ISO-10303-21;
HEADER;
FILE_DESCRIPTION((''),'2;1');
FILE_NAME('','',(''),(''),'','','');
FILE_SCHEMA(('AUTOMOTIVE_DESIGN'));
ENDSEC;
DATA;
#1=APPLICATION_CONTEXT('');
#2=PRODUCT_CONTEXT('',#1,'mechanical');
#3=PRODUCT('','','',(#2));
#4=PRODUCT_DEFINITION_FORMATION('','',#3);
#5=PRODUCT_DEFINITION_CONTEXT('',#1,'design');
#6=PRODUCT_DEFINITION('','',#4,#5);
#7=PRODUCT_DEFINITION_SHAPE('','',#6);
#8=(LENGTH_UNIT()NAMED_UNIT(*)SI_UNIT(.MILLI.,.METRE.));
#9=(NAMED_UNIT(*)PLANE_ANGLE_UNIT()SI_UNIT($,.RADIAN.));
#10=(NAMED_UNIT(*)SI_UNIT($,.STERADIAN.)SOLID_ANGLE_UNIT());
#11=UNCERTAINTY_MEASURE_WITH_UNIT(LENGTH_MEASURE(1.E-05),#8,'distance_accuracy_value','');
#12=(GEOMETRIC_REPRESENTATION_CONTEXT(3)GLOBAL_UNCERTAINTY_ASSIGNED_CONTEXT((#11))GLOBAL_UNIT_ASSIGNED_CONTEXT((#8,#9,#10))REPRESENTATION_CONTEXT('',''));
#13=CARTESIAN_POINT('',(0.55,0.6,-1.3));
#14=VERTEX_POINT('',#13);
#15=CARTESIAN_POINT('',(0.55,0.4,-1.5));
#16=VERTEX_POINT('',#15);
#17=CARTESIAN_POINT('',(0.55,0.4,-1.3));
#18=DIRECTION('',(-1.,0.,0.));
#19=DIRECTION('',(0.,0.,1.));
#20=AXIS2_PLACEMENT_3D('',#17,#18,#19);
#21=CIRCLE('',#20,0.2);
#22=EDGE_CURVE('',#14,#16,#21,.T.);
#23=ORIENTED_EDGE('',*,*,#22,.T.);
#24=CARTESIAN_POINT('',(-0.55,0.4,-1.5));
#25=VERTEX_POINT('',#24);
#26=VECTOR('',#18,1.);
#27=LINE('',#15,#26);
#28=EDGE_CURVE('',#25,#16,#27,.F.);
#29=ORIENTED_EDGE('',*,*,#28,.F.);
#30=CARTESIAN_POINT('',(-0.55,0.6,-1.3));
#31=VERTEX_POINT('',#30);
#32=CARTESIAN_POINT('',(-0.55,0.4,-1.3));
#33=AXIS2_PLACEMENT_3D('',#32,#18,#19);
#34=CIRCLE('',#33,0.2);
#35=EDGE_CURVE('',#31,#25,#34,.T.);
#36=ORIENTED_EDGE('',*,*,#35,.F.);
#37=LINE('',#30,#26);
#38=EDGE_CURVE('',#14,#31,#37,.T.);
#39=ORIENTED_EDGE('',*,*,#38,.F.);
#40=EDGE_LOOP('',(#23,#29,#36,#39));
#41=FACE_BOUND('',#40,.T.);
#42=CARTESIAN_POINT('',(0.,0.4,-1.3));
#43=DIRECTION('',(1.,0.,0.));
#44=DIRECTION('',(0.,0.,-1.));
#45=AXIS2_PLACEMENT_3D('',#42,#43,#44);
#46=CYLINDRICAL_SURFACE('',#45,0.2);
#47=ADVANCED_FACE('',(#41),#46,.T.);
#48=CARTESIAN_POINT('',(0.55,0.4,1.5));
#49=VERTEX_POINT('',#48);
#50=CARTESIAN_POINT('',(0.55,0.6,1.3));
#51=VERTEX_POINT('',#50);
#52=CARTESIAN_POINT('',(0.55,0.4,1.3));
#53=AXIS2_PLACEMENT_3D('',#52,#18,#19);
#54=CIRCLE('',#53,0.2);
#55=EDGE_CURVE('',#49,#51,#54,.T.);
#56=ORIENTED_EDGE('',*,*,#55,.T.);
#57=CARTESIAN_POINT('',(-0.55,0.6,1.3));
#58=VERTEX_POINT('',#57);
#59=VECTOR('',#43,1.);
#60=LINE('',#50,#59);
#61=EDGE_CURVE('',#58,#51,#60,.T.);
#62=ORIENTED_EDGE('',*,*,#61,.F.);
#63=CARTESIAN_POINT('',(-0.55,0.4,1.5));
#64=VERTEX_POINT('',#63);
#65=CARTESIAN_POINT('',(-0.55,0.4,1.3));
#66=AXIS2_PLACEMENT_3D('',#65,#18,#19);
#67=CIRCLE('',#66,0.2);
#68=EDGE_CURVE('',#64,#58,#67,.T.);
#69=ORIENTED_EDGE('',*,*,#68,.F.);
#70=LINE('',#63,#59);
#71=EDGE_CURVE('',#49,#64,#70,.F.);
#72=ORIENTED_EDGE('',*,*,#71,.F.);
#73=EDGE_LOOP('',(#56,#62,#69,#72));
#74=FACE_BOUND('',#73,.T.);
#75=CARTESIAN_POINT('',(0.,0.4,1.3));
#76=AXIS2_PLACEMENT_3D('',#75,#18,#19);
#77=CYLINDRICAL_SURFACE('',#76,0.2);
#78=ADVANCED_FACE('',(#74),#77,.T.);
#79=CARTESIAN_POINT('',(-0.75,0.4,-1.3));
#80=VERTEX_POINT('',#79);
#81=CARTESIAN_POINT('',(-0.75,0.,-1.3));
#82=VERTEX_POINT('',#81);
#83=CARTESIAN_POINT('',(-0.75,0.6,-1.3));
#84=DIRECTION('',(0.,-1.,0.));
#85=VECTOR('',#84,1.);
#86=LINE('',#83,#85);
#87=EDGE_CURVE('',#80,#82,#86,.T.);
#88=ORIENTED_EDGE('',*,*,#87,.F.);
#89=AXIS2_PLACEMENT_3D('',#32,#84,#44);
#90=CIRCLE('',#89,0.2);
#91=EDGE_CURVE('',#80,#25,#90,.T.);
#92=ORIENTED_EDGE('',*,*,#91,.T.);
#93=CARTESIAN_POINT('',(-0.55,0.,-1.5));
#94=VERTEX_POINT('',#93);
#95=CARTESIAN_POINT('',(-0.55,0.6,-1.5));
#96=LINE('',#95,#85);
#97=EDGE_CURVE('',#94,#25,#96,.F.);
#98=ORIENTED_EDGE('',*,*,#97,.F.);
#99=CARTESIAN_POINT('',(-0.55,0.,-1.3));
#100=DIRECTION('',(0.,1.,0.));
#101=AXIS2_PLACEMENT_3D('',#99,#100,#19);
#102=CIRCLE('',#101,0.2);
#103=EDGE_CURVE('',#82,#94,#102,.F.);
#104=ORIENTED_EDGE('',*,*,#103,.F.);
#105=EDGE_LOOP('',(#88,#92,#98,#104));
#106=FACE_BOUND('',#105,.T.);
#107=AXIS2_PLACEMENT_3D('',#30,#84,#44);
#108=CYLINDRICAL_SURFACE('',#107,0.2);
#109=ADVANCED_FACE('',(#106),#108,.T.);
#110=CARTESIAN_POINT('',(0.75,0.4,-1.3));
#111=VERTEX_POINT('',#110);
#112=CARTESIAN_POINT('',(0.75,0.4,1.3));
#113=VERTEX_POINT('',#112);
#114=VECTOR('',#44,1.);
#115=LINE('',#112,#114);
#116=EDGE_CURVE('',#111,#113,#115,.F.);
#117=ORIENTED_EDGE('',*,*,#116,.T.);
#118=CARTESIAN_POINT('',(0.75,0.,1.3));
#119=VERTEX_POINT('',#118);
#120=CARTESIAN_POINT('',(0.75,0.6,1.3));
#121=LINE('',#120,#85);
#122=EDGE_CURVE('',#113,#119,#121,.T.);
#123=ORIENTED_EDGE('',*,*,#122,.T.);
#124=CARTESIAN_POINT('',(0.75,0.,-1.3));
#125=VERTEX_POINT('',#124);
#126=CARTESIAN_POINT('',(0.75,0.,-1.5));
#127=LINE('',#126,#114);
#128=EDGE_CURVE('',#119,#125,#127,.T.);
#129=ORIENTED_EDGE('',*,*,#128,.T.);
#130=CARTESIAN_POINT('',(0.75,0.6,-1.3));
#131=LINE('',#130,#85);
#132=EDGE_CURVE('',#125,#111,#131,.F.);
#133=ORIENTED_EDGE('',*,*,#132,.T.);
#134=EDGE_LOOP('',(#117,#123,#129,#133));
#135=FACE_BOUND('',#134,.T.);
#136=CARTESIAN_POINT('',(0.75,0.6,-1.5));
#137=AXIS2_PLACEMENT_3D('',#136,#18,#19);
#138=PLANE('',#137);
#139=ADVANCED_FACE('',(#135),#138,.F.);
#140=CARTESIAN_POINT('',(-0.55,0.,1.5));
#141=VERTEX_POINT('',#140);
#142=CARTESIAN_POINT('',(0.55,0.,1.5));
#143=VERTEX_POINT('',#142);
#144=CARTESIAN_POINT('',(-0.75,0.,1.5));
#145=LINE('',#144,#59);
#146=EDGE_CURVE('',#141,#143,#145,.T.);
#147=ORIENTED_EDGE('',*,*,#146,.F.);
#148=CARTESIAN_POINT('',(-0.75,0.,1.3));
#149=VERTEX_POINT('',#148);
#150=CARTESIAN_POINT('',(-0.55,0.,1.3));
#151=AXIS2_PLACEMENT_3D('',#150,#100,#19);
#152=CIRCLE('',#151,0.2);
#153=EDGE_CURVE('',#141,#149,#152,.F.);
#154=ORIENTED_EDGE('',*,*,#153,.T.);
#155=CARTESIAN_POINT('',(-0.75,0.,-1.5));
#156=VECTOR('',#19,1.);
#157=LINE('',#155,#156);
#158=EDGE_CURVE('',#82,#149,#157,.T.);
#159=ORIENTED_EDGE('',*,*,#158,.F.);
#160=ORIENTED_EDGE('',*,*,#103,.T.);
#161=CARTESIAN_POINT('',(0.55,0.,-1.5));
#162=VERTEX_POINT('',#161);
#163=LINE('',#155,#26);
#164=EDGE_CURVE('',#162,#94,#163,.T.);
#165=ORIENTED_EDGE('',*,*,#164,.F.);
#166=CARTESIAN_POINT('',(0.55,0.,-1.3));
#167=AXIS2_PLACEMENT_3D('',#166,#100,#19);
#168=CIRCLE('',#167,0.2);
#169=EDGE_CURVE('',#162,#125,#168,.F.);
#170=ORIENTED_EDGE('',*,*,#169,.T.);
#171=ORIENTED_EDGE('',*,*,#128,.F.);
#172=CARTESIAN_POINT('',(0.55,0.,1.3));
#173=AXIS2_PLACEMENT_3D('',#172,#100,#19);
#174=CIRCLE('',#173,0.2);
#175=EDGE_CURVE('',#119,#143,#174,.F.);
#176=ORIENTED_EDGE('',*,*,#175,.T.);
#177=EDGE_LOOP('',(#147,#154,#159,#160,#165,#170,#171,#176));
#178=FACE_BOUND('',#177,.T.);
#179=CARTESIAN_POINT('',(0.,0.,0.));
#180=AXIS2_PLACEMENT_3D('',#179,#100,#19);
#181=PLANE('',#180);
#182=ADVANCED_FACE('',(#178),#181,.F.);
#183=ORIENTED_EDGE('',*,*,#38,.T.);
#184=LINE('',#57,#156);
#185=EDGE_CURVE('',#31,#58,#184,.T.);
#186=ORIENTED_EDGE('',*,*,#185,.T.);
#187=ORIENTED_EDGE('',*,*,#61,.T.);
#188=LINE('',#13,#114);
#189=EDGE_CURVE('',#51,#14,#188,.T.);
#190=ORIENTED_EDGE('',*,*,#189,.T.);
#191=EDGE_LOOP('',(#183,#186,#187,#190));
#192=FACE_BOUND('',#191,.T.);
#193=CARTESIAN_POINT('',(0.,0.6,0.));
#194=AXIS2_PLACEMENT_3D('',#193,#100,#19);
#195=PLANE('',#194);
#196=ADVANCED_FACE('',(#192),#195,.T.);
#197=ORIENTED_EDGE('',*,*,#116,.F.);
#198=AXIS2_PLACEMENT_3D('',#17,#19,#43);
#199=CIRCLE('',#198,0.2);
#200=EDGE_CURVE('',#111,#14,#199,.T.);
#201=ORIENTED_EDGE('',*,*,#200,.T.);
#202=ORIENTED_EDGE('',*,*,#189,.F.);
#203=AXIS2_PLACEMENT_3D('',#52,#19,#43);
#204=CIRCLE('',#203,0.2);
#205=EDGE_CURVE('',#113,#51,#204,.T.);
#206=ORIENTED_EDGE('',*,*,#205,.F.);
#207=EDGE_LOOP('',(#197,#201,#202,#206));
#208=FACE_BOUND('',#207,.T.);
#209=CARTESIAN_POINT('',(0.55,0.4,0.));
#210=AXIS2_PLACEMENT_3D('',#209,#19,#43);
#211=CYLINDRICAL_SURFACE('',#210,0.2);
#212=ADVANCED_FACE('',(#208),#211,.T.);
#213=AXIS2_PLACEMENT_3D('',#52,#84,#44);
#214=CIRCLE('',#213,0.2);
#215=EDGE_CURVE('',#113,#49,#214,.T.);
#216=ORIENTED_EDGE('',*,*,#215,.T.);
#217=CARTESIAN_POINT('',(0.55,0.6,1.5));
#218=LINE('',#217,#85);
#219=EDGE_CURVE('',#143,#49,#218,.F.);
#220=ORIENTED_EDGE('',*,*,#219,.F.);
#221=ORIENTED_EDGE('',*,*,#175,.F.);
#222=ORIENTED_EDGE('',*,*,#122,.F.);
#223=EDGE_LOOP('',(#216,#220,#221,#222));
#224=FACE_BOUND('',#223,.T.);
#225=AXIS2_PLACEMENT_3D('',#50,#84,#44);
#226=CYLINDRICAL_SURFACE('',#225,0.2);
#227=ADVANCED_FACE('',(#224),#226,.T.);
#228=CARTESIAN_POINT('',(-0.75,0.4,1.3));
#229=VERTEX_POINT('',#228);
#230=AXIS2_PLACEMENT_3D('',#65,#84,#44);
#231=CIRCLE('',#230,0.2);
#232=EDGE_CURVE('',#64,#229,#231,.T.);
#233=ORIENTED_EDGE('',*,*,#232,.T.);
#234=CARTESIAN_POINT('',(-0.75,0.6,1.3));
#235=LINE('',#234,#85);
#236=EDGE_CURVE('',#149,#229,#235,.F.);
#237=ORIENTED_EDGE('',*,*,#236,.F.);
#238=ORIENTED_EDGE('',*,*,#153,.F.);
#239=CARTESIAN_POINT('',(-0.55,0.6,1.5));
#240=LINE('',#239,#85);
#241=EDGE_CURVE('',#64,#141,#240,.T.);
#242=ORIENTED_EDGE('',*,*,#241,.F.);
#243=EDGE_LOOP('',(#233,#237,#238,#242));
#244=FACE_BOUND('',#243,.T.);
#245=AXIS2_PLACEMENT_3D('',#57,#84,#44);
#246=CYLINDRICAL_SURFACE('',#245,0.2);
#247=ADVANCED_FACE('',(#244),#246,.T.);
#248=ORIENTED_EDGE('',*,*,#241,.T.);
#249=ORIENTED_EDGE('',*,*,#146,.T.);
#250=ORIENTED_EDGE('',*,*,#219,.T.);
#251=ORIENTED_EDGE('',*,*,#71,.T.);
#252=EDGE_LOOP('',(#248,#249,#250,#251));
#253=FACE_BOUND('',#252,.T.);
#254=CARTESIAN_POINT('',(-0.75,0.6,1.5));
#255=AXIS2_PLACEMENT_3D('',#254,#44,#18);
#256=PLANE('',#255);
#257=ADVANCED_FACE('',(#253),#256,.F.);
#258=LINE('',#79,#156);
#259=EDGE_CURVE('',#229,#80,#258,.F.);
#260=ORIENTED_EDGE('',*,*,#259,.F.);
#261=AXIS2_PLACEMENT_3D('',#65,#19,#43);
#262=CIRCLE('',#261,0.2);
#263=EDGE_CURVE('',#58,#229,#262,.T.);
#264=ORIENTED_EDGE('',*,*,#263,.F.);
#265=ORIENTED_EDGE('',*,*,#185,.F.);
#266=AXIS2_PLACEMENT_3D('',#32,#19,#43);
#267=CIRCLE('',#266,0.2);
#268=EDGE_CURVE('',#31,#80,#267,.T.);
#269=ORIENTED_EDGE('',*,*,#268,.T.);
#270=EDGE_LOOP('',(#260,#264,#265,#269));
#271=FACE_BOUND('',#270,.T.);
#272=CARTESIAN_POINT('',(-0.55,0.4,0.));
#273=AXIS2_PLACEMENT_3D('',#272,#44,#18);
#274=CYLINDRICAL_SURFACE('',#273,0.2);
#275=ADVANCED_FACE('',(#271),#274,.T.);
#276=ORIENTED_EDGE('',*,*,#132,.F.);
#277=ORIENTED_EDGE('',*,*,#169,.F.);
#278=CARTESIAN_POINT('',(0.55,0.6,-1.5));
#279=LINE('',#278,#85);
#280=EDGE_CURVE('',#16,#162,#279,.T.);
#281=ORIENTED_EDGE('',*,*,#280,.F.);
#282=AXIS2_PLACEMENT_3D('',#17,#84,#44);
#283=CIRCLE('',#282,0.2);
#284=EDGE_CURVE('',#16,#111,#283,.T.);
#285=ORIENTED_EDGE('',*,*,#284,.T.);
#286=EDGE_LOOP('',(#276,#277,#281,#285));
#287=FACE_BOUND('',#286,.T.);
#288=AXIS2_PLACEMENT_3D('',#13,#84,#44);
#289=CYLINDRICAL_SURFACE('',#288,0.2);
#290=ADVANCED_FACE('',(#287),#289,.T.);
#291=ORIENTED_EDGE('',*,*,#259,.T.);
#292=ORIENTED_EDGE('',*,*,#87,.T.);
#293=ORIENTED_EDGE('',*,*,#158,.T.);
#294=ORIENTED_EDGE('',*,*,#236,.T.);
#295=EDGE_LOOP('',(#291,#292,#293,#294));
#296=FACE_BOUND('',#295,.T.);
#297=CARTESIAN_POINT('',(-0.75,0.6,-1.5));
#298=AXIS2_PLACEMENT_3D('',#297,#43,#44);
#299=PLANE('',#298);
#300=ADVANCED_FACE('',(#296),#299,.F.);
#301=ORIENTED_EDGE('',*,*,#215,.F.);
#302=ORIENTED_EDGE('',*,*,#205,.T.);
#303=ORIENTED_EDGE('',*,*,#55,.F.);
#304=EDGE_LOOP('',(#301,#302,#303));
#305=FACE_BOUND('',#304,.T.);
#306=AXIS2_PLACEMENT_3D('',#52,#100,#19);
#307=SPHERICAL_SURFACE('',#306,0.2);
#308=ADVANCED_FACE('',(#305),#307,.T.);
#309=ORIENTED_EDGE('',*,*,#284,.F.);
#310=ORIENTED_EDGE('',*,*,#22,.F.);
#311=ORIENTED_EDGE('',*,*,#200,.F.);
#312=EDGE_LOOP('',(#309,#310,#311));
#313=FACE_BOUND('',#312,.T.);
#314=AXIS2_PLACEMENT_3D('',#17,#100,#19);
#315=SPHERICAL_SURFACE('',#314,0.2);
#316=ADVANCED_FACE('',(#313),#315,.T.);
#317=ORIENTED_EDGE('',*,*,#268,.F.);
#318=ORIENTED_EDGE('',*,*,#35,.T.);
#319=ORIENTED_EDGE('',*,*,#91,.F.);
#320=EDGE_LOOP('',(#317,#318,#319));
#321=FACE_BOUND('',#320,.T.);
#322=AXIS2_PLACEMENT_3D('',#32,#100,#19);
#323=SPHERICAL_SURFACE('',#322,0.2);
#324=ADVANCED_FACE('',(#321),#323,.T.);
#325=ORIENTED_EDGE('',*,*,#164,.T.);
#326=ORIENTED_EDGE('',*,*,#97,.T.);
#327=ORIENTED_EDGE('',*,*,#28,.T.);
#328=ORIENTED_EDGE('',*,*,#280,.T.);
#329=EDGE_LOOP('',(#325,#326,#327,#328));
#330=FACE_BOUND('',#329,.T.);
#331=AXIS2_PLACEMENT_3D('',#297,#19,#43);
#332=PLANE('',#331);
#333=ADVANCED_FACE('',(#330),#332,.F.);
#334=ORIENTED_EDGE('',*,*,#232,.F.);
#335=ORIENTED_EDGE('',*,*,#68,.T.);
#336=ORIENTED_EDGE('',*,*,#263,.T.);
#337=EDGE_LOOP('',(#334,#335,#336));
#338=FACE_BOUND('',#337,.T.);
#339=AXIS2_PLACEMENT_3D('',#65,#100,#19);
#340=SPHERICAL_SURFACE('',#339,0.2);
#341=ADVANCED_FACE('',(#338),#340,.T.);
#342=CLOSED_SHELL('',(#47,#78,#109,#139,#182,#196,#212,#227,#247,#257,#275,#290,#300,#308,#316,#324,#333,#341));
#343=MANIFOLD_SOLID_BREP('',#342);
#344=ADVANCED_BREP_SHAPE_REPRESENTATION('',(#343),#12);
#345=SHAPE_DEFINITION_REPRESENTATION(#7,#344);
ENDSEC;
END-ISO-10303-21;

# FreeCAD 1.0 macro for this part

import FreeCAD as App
import Part
import Sketcher

V = App.Vector
Q = App.Units.Quantity


def edges_at(feature, points):
    """Names of the edges that pass closest to the given points."""
    edges = feature.Shape.Edges
    near = lambda p: min(range(len(edges)), key=lambda i: edges[i].distToShape(Part.Vertex(*p))[0])
    return sorted({f"Edge{near(p) + 1}" for p in points})


def add_polygon(sketch, points):
    """Adds a closed chain of lines whose ends are joined by coincident constraints."""
    first, n = sketch.GeometryCount, len(points)
    for a, b in zip(points, points[1:] + points[:1]):
        sketch.addGeometry(Part.LineSegment(App.Vector(*a, 0), App.Vector(*b, 0)), False)
    for i in range(n):
        sketch.addConstraint(Sketcher.Constraint("Coincident", first + i, 2, first + (i + 1) % n, 1))

doc = App.newDocument("Part")
params = doc.addObject("Spreadsheet::Sheet", "Params")
for row, (alias, value) in enumerate([
    ("sketch1_height", "3 mm"),
    ("sketch1_width", "1.5 mm"),
    ("pad1_length", "0.6 mm"),
    ("fillet_radius", "0.2 mm"),
    ("fillet2_radius", "0.2 mm"),
], start=1):
    params.set(f"A{row}", alias)
    params.set(f"B{row}", "=" + value)
    params.setAlias(f"B{row}", alias)

body = doc.addObject("PartDesign::Body", "Body")

# Sketch on XZ plane
sketch1 = body.newObject("Sketcher::SketchObject", "Sketch")
sketch1.AttachmentSupport = (doc.getObject("XZ_Plane"), [""])
sketch1.MapMode = "FlatFace"
add_polygon(sketch1, [(-0.8, -1.5), (-0.8, 1.5), (0.8, 1.5), (0.8, -1.5)])  # lines 0-3
sketch1.addConstraint([
    Sketcher.Constraint("Vertical", 0),
    Sketcher.Constraint("Horizontal", 1),
    Sketcher.Constraint("Vertical", 2),
    Sketcher.Constraint("Horizontal", 3),
    Sketcher.Constraint("Symmetric", 0, 2, 2, 2, -1, 1),
    Sketcher.Constraint("DistanceY", 0, 1, 0, 2, Q("3 mm")),
    Sketcher.Constraint("DistanceX", 1, 1, 1, 2, Q("1.5 mm")),
])
sketch1.setExpression("Constraints[9]", "Params.sketch1_height")
sketch1.setExpression("Constraints[10]", "Params.sketch1_width")
pad1 = body.newObject("PartDesign::Pad", "Pad")
pad1.Profile = sketch1
pad1.setExpression("Length", "Params.pad1_length")
pad1.Reversed = True
doc.recompute()

fillet = body.newObject("PartDesign::Fillet", "Fillet")
fillet.Base = (pad1, edges_at(pad1, [
    (0.75, 0.3, 1.5),
    (-0.75, 0.3, 1.5),
    (-0.75, 0.3, -1.5),
    (0.75, 0.3, -1.5),
]))
fillet.setExpression("Radius", "Params.fillet_radius")
doc.recompute()

fillet2 = body.newObject("PartDesign::Fillet", "Fillet001")
fillet2.Base = (fillet, edges_at(fillet, [
    (0.75, 0.6, 0),
    (0, 0.6, 1.5),
    (0, 0.6, -1.5),
    (-0.75, 0.6, 0),
    (-0.691, 0.6, -1.441),
    (-0.691, 0.6, 1.441),
    (0.691, 0.6, -1.441),
    (0.691, 0.6, 1.441),
]))
fillet2.setExpression("Radius", "Params.fillet2_radius")

doc.recompute()
